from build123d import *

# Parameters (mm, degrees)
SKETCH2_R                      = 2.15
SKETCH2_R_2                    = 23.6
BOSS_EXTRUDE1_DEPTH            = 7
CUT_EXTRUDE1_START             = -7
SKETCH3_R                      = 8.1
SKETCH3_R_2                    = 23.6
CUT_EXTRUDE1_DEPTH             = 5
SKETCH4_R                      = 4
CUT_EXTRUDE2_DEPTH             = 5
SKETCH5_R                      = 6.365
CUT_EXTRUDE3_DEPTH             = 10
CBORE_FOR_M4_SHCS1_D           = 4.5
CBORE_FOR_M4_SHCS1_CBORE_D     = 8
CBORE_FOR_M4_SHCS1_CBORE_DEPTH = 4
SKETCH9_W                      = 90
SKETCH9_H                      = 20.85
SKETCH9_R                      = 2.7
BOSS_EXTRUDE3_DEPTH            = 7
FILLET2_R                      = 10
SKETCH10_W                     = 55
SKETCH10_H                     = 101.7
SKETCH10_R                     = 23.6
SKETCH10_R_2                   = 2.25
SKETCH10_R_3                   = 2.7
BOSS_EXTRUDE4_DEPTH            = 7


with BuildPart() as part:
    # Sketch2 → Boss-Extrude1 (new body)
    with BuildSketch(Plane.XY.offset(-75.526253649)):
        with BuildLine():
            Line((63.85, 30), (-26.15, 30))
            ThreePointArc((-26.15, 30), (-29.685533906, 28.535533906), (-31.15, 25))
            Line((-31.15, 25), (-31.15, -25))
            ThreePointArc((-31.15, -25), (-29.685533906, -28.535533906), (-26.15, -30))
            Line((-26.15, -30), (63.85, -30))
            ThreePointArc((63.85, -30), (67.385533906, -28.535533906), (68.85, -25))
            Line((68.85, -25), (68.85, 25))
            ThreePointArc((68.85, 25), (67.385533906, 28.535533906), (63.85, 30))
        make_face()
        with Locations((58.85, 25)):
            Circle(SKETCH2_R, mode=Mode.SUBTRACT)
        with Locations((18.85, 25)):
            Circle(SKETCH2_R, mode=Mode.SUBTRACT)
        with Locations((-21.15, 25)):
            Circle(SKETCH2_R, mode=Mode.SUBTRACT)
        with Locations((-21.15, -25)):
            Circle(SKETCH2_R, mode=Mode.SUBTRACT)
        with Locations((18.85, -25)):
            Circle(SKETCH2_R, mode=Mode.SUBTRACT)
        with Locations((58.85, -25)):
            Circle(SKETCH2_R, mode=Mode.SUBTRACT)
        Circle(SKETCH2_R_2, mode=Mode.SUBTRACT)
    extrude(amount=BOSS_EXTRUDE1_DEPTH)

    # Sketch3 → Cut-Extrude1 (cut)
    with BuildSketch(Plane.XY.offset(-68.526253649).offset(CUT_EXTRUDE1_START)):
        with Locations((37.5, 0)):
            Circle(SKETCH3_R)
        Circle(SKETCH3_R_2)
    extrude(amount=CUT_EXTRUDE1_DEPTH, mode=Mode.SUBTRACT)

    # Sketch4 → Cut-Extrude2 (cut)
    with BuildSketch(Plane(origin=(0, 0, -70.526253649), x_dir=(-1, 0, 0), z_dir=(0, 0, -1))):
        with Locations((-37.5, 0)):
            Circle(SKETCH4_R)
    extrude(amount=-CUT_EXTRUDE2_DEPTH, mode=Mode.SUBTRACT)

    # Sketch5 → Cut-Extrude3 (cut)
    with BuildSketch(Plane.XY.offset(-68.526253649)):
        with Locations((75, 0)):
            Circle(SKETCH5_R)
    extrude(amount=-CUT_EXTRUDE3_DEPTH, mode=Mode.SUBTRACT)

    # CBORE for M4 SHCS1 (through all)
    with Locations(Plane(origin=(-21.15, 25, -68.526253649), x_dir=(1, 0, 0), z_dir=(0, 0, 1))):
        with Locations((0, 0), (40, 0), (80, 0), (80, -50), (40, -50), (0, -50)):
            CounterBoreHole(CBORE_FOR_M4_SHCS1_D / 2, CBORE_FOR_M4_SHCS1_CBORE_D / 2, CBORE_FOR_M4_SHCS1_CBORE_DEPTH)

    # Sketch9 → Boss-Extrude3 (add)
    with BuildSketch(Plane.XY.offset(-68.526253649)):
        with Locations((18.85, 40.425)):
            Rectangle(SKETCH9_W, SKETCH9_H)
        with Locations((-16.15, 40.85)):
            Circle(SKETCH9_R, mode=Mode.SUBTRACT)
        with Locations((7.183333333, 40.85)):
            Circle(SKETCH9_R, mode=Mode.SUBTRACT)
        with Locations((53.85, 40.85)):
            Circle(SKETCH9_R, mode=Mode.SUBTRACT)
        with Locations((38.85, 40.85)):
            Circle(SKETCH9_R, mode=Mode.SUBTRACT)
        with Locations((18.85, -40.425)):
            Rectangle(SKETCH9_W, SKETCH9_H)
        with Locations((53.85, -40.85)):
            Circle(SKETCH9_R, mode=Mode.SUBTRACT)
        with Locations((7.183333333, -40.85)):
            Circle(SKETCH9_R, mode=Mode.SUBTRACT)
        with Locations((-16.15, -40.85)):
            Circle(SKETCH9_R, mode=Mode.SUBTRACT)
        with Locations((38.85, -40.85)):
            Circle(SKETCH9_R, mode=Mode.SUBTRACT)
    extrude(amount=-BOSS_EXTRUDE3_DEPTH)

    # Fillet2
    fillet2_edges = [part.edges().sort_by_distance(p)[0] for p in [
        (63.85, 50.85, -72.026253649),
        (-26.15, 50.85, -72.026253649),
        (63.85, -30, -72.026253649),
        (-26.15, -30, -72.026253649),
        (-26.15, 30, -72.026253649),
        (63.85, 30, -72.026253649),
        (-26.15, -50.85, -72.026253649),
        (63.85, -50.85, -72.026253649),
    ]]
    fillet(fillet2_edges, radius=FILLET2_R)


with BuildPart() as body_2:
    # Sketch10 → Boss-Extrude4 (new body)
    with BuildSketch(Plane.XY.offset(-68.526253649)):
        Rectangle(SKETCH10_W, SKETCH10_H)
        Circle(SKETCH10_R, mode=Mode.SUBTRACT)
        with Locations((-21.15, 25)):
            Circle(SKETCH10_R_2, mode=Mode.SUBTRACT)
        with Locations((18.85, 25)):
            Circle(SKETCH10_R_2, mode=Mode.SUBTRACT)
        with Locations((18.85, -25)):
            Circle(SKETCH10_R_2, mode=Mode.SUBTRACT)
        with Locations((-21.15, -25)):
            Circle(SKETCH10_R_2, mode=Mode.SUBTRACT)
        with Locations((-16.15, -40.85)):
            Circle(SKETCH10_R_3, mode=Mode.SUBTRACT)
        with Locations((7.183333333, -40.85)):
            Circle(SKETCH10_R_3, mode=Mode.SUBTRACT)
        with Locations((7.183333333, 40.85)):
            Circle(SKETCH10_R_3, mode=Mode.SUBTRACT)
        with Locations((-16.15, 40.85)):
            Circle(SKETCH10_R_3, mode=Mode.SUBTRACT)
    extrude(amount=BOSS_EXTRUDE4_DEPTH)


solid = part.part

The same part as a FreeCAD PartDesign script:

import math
import FreeCAD as App
import Part
import Sketcher
from FreeCAD import Vector
Q = App.Units.Quantity


def edges_at(feature, points):
    """Names of the edges that pass closest to the given points."""
    edges = feature.Shape.Edges
    near = lambda p: min(range(len(edges)), key=lambda i: edges[i].distToShape(Part.Vertex(*p))[0])
    return sorted({f"Edge{near(p) + 1}" for p in points})


def add_polygon(sketch, points):
    """Adds a closed chain of lines whose ends are joined by coincident constraints."""
    first, n = sketch.GeometryCount, len(points)
    for a, b in zip(points, points[1:] + points[:1]):
        sketch.addGeometry(Part.LineSegment(App.Vector(*a, 0), App.Vector(*b, 0)), False)
    for i in range(n):
        sketch.addConstraint(Sketcher.Constraint("Coincident", first + i, 2, first + (i + 1) % n, 1))

doc = App.newDocument("Part")
body = doc.addObject("PartDesign::Body", "Body")

# Sketch on XY plane
sketch1 = doc.addObject("Sketcher::SketchObject", "Sketch")
body.addObject(sketch1)
sketch1.AttachmentSupport = (doc.XY_Plane, [""])
sketch1.MapMode = "FlatFace"
sketch1.AttachmentOffset = App.Placement(Vector(0, 0, -75.526254), App.Rotation())
sketch1.addGeometry([
    Part.LineSegment(Vector(63.9, 30, 0), Vector(-26.1, 30, 0)),  # 0
    Part.ArcOfCircle(Part.Circle(Vector(-26.1, 25, 0), Vector(0, 0, 1), 5), math.radians(90), math.radians(180)),  # 1
    Part.LineSegment(Vector(-31.1, 25, 0), Vector(-31.1, -25, 0)),  # 2
    Part.ArcOfCircle(Part.Circle(Vector(-26.1, -25, 0), Vector(0, 0, 1), 5), math.radians(180), math.radians(270)),  # 3
    Part.LineSegment(Vector(-26.1, -30, 0), Vector(63.9, -30, 0)),  # 4
    Part.ArcOfCircle(Part.Circle(Vector(63.9, -25, 0), Vector(0, 0, 1), 5), math.radians(-90), math.radians(0)),  # 5
    Part.LineSegment(Vector(68.8, -25, 0), Vector(68.8, 25, 0)),  # 6
    Part.ArcOfCircle(Part.Circle(Vector(63.9, 25, 0), Vector(0, 0, 1), 5), math.radians(0), math.radians(90)),  # 7
    Part.Circle(Vector(-21.1, -25, 0), Vector(0, 0, 1), 2.1),  # 8
    Part.Circle(Vector(18.9, -25, 0), Vector(0, 0, 1), 2.1),  # 9
    Part.Circle(Vector(58.9, -25, 0), Vector(0, 0, 1), 2.1),  # 10
    Part.Circle(Vector(0, 0, 0), Vector(0, 0, 1), 23.6),  # 11
    Part.Circle(Vector(-21.1, 25, 0), Vector(0, 0, 1), 2.1),  # 12
    Part.Circle(Vector(18.9, 25, 0), Vector(0, 0, 1), 2.1),  # 13
    Part.Circle(Vector(58.9, 25, 0), Vector(0, 0, 1), 2.1),  # 14
], False)
sketch1.addConstraint([
    Sketcher.Constraint("Tangent", 0, 2, 1, 1),
    Sketcher.Constraint("Tangent", 1, 2, 2, 1),
    Sketcher.Constraint("Tangent", 2, 2, 3, 1),
    Sketcher.Constraint("Tangent", 3, 2, 4, 1),
    Sketcher.Constraint("Tangent", 4, 2, 5, 1),
    Sketcher.Constraint("Tangent", 5, 2, 6, 1),
    Sketcher.Constraint("Tangent", 6, 2, 7, 1),
    Sketcher.Constraint("Tangent", 7, 2, 0, 1),
    Sketcher.Constraint("Horizontal", 0),
    Sketcher.Constraint("Vertical", 2),
    Sketcher.Constraint("Horizontal", 4),
    Sketcher.Constraint("Vertical", 6),
    Sketcher.Constraint("Coincident", 11, 3, -1, 1),
    Sketcher.Constraint("Equal", 1, 3),
    Sketcher.Constraint("Equal", 3, 5),
    Sketcher.Constraint("Equal", 5, 7),
    Sketcher.Constraint("Equal", 8, 9),
    Sketcher.Constraint("Equal", 9, 10),
    Sketcher.Constraint("Equal", 10, 12),
    Sketcher.Constraint("Equal", 12, 13),
    Sketcher.Constraint("Equal", 13, 14),
    Sketcher.Constraint("Symmetric", 8, 3, 12, 3, -1),
    Sketcher.Constraint("Symmetric", 9, 3, 13, 3, -1),
    Sketcher.Constraint("Symmetric", 10, 3, 14, 3, -1),
    Sketcher.Constraint("Horizontal", 5, 3, 8, 3),
    Sketcher.Constraint("Horizontal", 8, 3, 9, 3),
    Sketcher.Constraint("Horizontal", 9, 3, 10, 3),
    Sketcher.Constraint("Horizontal", 7, 3, 12, 3),
    Sketcher.Constraint("Radius", 1, Q("5 mm")),
    Sketcher.Constraint("Diameter", 8, Q("4.3 mm")),
    Sketcher.Constraint("Diameter", 11, Q("47.2 mm")),
    Sketcher.Constraint("DistanceX", 0, 2, 0, 1, Q("90 mm")),
    Sketcher.Constraint("DistanceY", 2, 2, 2, 1, Q("50 mm")),
    Sketcher.Constraint("DistanceX", 3, 3, 8, 3, Q("5 mm")),
    Sketcher.Constraint("DistanceX", 8, 3, 9, 3, Q("40 mm")),
    Sketcher.Constraint("DistanceX", 10, 3, 5, 3, Q("5 mm")),
    Sketcher.Constraint("DistanceX", 1, 3, -1, 1, Q("26.15 mm")),
])
pad1 = doc.addObject("PartDesign::Pad", "Pad")
body.addObject(pad1)
pad1.Profile = sketch1
pad1.Length = 7

# Sketch on XY plane
sketch2 = doc.addObject("Sketcher::SketchObject", "Sketch001")
body.addObject(sketch2)
sketch2.AttachmentSupport = (doc.XY_Plane, [""])
sketch2.MapMode = "FlatFace"
sketch2.AttachmentOffset = App.Placement(Vector(0, 0, -75.526254), App.Rotation())
sketch2.addGeometry([
    Part.Circle(Vector(38, 0, 0), Vector(0, 0, 1), 8),
    Part.Circle(Vector(0, 0, 0), Vector(0, 0, 1), 24),
], False)
sketch2.addConstraint([
    Sketcher.Constraint("Coincident", 1, 3, -1, 1),
    Sketcher.Constraint("PointOnObject", 0, 3, -1),
    Sketcher.Constraint("Diameter", 0, Q("16.2 mm")),
    Sketcher.Constraint("Diameter", 1, Q("47.2 mm")),
    Sketcher.Constraint("DistanceX", -1, 1, 0, 3, Q("37.5 mm")),
])
pocket1 = doc.addObject("PartDesign::Pocket", "Pocket")
body.addObject(pocket1)
pocket1.Profile = sketch2
pocket1.Length = 5
pocket1.Reversed = True

# Sketch on XY plane
sketch3 = doc.addObject("Sketcher::SketchObject", "Sketch002")
body.addObject(sketch3)
sketch3.AttachmentSupport = (doc.XY_Plane, [""])
sketch3.MapMode = "FlatFace"
sketch3.AttachmentOffset = App.Placement(Vector(0, 0, -70.526254), App.Rotation())
sketch3.addGeometry(Part.Circle(Vector(37.5, 0, 0), Vector(0, 0, 1), 4), False)
sketch3.addConstraint([
    Sketcher.Constraint("PointOnObject", 0, 3, -1),
    Sketcher.Constraint("Diameter", 0, Q("8 mm")),
    Sketcher.Constraint("DistanceX", -1, 1, 0, 3, Q("37.5 mm")),
])
pocket2 = doc.addObject("PartDesign::Pocket", "Pocket001")
body.addObject(pocket2)
pocket2.Profile = sketch3
pocket2.Length = 5
pocket2.Reversed = True

# Sketch on XY plane
sketch4 = doc.addObject("Sketcher::SketchObject", "Sketch003")
body.addObject(sketch4)
sketch4.AttachmentSupport = (doc.XY_Plane, [""])
sketch4.MapMode = "FlatFace"
sketch4.AttachmentOffset = App.Placement(Vector(0, 0, -68.526254), App.Rotation())
sketch4.addGeometry(Part.Circle(Vector(75, 0, 0), Vector(0, 0, 1), 6), False)
sketch4.addConstraint([
    Sketcher.Constraint("PointOnObject", 0, 3, -1),
    Sketcher.Constraint("Diameter", 0, Q("12.73 mm")),
    Sketcher.Constraint("DistanceX", -1, 1, 0, 3, Q("75 mm")),
])
pocket3 = doc.addObject("PartDesign::Pocket", "Pocket002")
body.addObject(pocket3)
pocket3.Profile = sketch4
pocket3.Length = 10

# Sketch on XY plane
sketch5 = doc.addObject("Sketcher::SketchObject", "Sketch004")
body.addObject(sketch5)
sketch5.AttachmentSupport = (doc.XY_Plane, [""])
sketch5.MapMode = "FlatFace"
sketch5.AttachmentOffset = App.Placement(Vector(0, 0, -68.526254), App.Rotation())
sketch5.addGeometry([
    Part.Circle(Vector(-21.1, 25, 0), Vector(0, 0, 1), 2.2),  # 0
    Part.Circle(Vector(18.9, 25, 0), Vector(0, 0, 1), 2.2),  # 1
    Part.Circle(Vector(58.9, 25, 0), Vector(0, 0, 1), 2.2),  # 2
    Part.Circle(Vector(58.9, -25, 0), Vector(0, 0, 1), 2.2),  # 3
    Part.Circle(Vector(18.9, -25, 0), Vector(0, 0, 1), 2.2),  # 4
    Part.Circle(Vector(-21.1, -25, 0), Vector(0, 0, 1), 2.2),  # 5
], False)
sketch5.addConstraint([
    Sketcher.Constraint("Equal", 0, 1),
    Sketcher.Constraint("Equal", 1, 2),
    Sketcher.Constraint("Equal", 2, 3),
    Sketcher.Constraint("Equal", 3, 4),
    Sketcher.Constraint("Equal", 4, 5),
    Sketcher.Constraint("Symmetric", 2, 3, 3, 3, -1),
    Sketcher.Constraint("Symmetric", 1, 3, 4, 3, -1),
    Sketcher.Constraint("Symmetric", 0, 3, 5, 3, -1),
    Sketcher.Constraint("Horizontal", 0, 3, 1, 3),
    Sketcher.Constraint("Horizontal", 1, 3, 2, 3),
    Sketcher.Constraint("Diameter", 0, Q("4.5 mm")),
    Sketcher.Constraint("DistanceY", -1, 1, 0, 3, Q("25 mm")),
    Sketcher.Constraint("DistanceX", 0, 3, 1, 3, Q("40 mm")),
    Sketcher.Constraint("DistanceX", 1, 3, 2, 3, Q("40 mm")),
    Sketcher.Constraint("DistanceX", 0, 3, -1, 1, Q("21.15 mm")),
])
doc.recompute()
hole = doc.addObject("PartDesign::Hole", "Hole")
body.addObject(hole)
hole.Profile = sketch5
hole.ThreadType = "None"
hole.Diameter = 4.5
hole.DepthType = "ThroughAll"
hole.HoleCutType = "Counterbore"
hole.HoleCutDiameter = 8
hole.HoleCutDepth = 4

# Sketch on XY plane
sketch6 = doc.addObject("Sketcher::SketchObject", "Sketch005")
body.addObject(sketch6)
sketch6.AttachmentSupport = (doc.XY_Plane, [""])
sketch6.MapMode = "FlatFace"
sketch6.AttachmentOffset = App.Placement(Vector(0, 0, -68.526254), App.Rotation())
add_polygon(sketch6, [(-26.1, 50.9), (-26.1, 30), (63.9, 30), (63.9, 50.9)])  # lines 0-3
sketch6.addGeometry(Part.Circle(Vector(-16.1, 40.9, 0), Vector(0, 0, 1), 2.7), False)  # 4
sketch6.addGeometry(Part.Circle(Vector(7.2, 40.9, 0), Vector(0, 0, 1), 2.7), False)  # 5
sketch6.addGeometry(Part.Circle(Vector(38.9, 40.9, 0), Vector(0, 0, 1), 2.7), False)  # 6
sketch6.addGeometry(Part.Circle(Vector(53.9, 40.9, 0), Vector(0, 0, 1), 2.7), False)  # 7
add_polygon(sketch6, [(-26.1, -30), (-26.1, -50.9), (63.9, -50.9), (63.9, -30)])  # lines 8-11
sketch6.addGeometry(Part.Circle(Vector(-16.1, -40.9, 0), Vector(0, 0, 1), 2.7), False)  # 12
sketch6.addGeometry(Part.Circle(Vector(7.2, -40.9, 0), Vector(0, 0, 1), 2.7), False)  # 13
sketch6.addGeometry(Part.Circle(Vector(38.9, -40.9, 0), Vector(0, 0, 1), 2.7), False)  # 14
sketch6.addGeometry(Part.Circle(Vector(53.9, -40.9, 0), Vector(0, 0, 1), 2.7), False)  # 15
sketch6.addConstraint([
    Sketcher.Constraint("Vertical", 0),
    Sketcher.Constraint("Horizontal", 1),
    Sketcher.Constraint("Vertical", 2),
    Sketcher.Constraint("Horizontal", 3),
    Sketcher.Constraint("Vertical", 8),
    Sketcher.Constraint("Horizontal", 9),
    Sketcher.Constraint("Vertical", 10),
    Sketcher.Constraint("Horizontal", 11),
    Sketcher.Constraint("Equal", 4, 5),
    Sketcher.Constraint("Equal", 5, 6),
    Sketcher.Constraint("Equal", 6, 7),
    Sketcher.Constraint("Equal", 7, 12),
    Sketcher.Constraint("Equal", 12, 13),
    Sketcher.Constraint("Equal", 13, 14),
    Sketcher.Constraint("Equal", 14, 15),
    Sketcher.Constraint("Symmetric", 4, 3, 12, 3, -1),
    Sketcher.Constraint("Symmetric", 5, 3, 13, 3, -1),
    Sketcher.Constraint("Symmetric", 6, 3, 14, 3, -1),
    Sketcher.Constraint("Symmetric", 7, 3, 15, 3, -1),
    Sketcher.Constraint("Symmetric", 3, 2, 8, 2, -1),
    Sketcher.Constraint("Symmetric", 1, 2, 10, 2, -1),
    Sketcher.Constraint("Horizontal", 4, 3, 5, 3),
    Sketcher.Constraint("Horizontal", 5, 3, 6, 3),
    Sketcher.Constraint("Horizontal", 6, 3, 7, 3),
    Sketcher.Constraint("Diameter", 4, Q("5.4 mm")),
    Sketcher.Constraint("DistanceX", 1, 1, 1, 2, Q("90 mm")),
    Sketcher.Constraint("DistanceY", -1, 1, 0, 2, Q("30 mm")),
    Sketcher.Constraint("DistanceX", 4, 3, 6, 3, Q("55 mm")),
    Sketcher.Constraint("DistanceX", 6, 3, 7, 3, Q("15 mm")),
    Sketcher.Constraint("DistanceX", 0, 2, 4, 3, Q("10 mm")),
    Sketcher.Constraint("DistanceY", 7, 3, 2, 2, Q("10 mm")),
    Sketcher.Constraint("DistanceY", 0, 2, 0, 1, Q("20.85 mm")),
    Sketcher.Constraint("DistanceX", 4, 3, -1, 1, Q("16.15 mm")),
    Sketcher.Constraint("DistanceX", -1, 1, 5, 3, Q("7.183333 mm")),
])
pad2 = doc.addObject("PartDesign::Pad", "Pad001")
body.addObject(pad2)
pad2.Profile = sketch6
pad2.Length = 7
pad2.Reversed = True
doc.recompute()

fillet = doc.addObject("PartDesign::Fillet", "Fillet")
body.addObject(fillet)
fillet.Base = (pad2, edges_at(pad2, [
    (63.85, 50.85, -72.026),
    (-26.15, 50.85, -72.026),
    (63.85, -30, -72.026),
    (-26.15, -30, -72.026),
    (-26.15, 30, -72.026),
    (63.85, 30, -72.026),
    (-26.15, -50.85, -72.026),
    (63.85, -50.85, -72.026),
]))
fillet.Radius = 10
body2 = doc.addObject("PartDesign::Body", "Body001")

# Sketch on XY plane
sketch7 = doc.addObject("Sketcher::SketchObject", "Sketch006")
body2.addObject(sketch7)
sketch7.AttachmentSupport = (doc.getObject("XY_Plane001"), [""])
sketch7.MapMode = "FlatFace"
sketch7.AttachmentOffset = App.Placement(Vector(0, 0, -68.526254), App.Rotation())
add_polygon(sketch7, [(-27.5, 50.9), (-27.5, -50.9), (27.5, -50.9), (27.5, 50.9)])  # lines 0-3
sketch7.addGeometry(Part.Circle(Vector(-16.1, -40.9, 0), Vector(0, 0, 1), 2.7), False)  # 4
sketch7.addGeometry(Part.Circle(Vector(-21.1, -25, 0), Vector(0, 0, 1), 2.2), False)  # 5
sketch7.addGeometry(Part.Circle(Vector(7.2, -40.9, 0), Vector(0, 0, 1), 2.7), False)  # 6
sketch7.addGeometry(Part.Circle(Vector(18.9, -25, 0), Vector(0, 0, 1), 2.2), False)  # 7
sketch7.addGeometry(Part.Circle(Vector(-21.1, 25, 0), Vector(0, 0, 1), 2.2), False)  # 8
sketch7.addGeometry(Part.Circle(Vector(-16.1, 40.9, 0), Vector(0, 0, 1), 2.7), False)  # 9
sketch7.addGeometry(Part.Circle(Vector(0, 0, 0), Vector(0, 0, 1), 23.6), False)  # 10
sketch7.addGeometry(Part.Circle(Vector(7.2, 40.9, 0), Vector(0, 0, 1), 2.7), False)  # 11
sketch7.addGeometry(Part.Circle(Vector(18.9, 25, 0), Vector(0, 0, 1), 2.2), False)  # 12
sketch7.addConstraint([
    Sketcher.Constraint("Vertical", 0),
    Sketcher.Constraint("Horizontal", 1),
    Sketcher.Constraint("Vertical", 2),
    Sketcher.Constraint("Horizontal", 3),
    Sketcher.Constraint("Coincident", 10, 3, -1, 1),
    Sketcher.Constraint("Equal", 4, 6),
    Sketcher.Constraint("Equal", 5, 7),
    Sketcher.Constraint("Equal", 7, 8),
    Sketcher.Constraint("Equal", 6, 9),
    Sketcher.Constraint("Equal", 9, 11),
    Sketcher.Constraint("Equal", 8, 12),
    Sketcher.Constraint("Symmetric", 0, 2, 2, 2, -1, 1),
    Sketcher.Constraint("Symmetric", 5, 3, 8, 3, -1),
    Sketcher.Constraint("Symmetric", 4, 3, 9, 3, -1),
    Sketcher.Constraint("Symmetric", 6, 3, 11, 3, -1),
    Sketcher.Constraint("Symmetric", 7, 3, 12, 3, -1),
    Sketcher.Constraint("Horizontal", 4, 3, 6, 3),
    Sketcher.Constraint("Horizontal", 5, 3, 7, 3),
    Sketcher.Constraint("Diameter", 4, Q("5.4 mm")),
    Sketcher.Constraint("Diameter", 5, Q("4.5 mm")),
    Sketcher.Constraint("Diameter", 10, Q("47.2 mm")),
    Sketcher.Constraint("DistanceX", 1, 1, 1, 2, Q("55 mm")),
    Sketcher.Constraint("DistanceY", 0, 2, 0, 1, Q("101.7 mm")),
    Sketcher.Constraint("DistanceY", 5, 3, -1, 1, Q("25 mm")),
    Sketcher.Constraint("DistanceX", 5, 3, 4, 3, Q("5 mm")),
    Sketcher.Constraint("DistanceX", 4, 3, 7, 3, Q("35 mm")),
    Sketcher.Constraint("DistanceY", 0, 2, 4, 3, Q("10 mm")),
    Sketcher.Constraint("DistanceX", 4, 3, -1, 1, Q("16.15 mm")),
    Sketcher.Constraint("DistanceX", -1, 1, 6, 3, Q("7.183333 mm")),
])
pad3 = doc.addObject("PartDesign::Pad", "Pad002")
body2.addObject(pad3)
pad3.Profile = sketch7
pad3.Length = 7
body2.Visibility = False

doc.recompute()
